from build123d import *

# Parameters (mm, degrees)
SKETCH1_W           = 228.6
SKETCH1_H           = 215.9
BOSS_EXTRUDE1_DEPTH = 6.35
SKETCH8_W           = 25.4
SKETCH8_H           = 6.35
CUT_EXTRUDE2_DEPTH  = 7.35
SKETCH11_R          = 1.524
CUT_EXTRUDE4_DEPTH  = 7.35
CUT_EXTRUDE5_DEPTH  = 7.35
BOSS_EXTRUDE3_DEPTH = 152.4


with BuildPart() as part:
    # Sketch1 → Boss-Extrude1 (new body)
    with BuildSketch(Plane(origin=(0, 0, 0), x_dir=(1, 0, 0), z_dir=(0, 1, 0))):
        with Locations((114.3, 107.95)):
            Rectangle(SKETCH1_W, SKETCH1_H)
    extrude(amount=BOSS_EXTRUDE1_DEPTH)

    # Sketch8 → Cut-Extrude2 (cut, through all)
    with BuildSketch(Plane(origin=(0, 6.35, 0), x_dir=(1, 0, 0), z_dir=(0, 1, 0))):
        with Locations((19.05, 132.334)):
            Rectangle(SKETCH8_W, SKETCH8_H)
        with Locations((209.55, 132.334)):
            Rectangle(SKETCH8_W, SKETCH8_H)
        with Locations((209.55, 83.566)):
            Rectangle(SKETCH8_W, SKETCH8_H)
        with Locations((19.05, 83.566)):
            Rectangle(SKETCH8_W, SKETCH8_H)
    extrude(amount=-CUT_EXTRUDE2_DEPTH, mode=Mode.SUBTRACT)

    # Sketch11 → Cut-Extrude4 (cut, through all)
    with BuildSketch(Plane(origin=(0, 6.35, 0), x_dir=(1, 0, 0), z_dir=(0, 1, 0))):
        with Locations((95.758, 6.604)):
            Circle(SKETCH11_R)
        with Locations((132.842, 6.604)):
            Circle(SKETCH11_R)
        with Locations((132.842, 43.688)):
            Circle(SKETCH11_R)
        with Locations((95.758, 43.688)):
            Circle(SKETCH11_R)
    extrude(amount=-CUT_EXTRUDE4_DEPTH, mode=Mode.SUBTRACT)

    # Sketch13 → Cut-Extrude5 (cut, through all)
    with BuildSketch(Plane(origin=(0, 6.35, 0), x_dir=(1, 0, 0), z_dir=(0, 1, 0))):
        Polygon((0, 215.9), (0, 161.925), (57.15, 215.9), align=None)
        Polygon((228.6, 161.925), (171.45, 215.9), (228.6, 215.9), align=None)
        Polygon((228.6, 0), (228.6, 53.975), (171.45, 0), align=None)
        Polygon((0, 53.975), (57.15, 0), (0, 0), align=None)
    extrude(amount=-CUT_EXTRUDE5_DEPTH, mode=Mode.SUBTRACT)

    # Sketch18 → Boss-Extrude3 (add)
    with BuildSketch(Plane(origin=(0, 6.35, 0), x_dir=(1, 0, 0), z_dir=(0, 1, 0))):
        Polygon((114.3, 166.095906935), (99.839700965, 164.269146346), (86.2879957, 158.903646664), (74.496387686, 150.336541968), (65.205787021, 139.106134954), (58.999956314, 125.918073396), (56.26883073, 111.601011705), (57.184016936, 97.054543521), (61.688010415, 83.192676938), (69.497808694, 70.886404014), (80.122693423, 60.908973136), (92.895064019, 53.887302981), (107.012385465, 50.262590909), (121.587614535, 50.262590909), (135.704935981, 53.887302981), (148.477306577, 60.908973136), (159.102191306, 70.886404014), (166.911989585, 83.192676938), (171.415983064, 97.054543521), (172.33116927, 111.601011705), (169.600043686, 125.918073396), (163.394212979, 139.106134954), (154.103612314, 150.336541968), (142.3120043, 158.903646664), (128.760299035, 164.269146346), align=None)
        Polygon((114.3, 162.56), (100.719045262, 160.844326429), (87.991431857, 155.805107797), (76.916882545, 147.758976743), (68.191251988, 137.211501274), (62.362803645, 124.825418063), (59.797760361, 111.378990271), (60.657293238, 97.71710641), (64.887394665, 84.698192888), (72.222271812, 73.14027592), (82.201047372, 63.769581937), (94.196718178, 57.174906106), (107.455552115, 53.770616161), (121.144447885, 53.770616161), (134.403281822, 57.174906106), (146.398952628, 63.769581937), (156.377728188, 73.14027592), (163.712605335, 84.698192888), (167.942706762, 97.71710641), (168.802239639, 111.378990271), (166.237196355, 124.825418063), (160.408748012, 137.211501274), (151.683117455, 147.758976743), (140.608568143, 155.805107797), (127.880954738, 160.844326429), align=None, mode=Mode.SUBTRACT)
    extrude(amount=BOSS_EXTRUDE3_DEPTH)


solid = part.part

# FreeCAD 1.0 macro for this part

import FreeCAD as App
import Part
import Sketcher
Q = App.Units.Quantity


def add_polygon(sketch, points):
    """Adds a closed chain of lines whose ends are joined by coincident constraints."""
    first, n = sketch.GeometryCount, len(points)
    for a, b in zip(points, points[1:] + points[:1]):
        sketch.addGeometry(Part.LineSegment(App.Vector(*a, 0), App.Vector(*b, 0)), False)
    for i in range(n):
        sketch.addConstraint(Sketcher.Constraint("Coincident", first + i, 2, first + (i + 1) % n, 1))

doc = App.newDocument("Part")
body = doc.addObject("PartDesign::Body", "Body")

sketch1 = body.newObject("Sketcher::SketchObject", "Sketch")
sketch1.AttachmentSupport = (doc.getObject("XZ_Plane"), [""])
sketch1.MapMode = "FlatFace"
add_polygon(sketch1, [(0, -216), (0, 0), (229, 0), (229, -216)])
sketch1.addConstraint(Sketcher.Constraint("Vertical", 0))
sketch1.addConstraint(Sketcher.Constraint("Horizontal", 1))
sketch1.addConstraint(Sketcher.Constraint("Vertical", 2))
sketch1.addConstraint(Sketcher.Constraint("Horizontal", 3))
sketch1.addConstraint(Sketcher.Constraint("Coincident", 0, 2, -1, 1))
sketch1.addConstraint(Sketcher.Constraint("DistanceX", 1, 1, 1, 2, Q("9 in")))
sketch1.addConstraint(Sketcher.Constraint("DistanceY", 0, 1, 0, 2, Q("8.5 in")))
pad1 = body.newObject("PartDesign::Pad", "Pad")
pad1.Profile = sketch1
pad1.Length = Q("0.25 in")
pad1.Reversed = True

sketch2 = body.newObject("Sketcher::SketchObject", "Sketch001")
sketch2.AttachmentSupport = (doc.getObject("XZ_Plane"), [""])
sketch2.MapMode = "FlatFace"
sketch2.AttachmentOffset = App.Placement(App.Vector(0, 0, -0.25 * 25.4), App.Rotation())
add_polygon(sketch2, [(6, -136), (6, -129), (32, -129), (32, -136)])
add_polygon(sketch2, [(197, -136), (197, -129), (222, -129), (222, -136)])
add_polygon(sketch2, [(197, -87), (197, -80), (222, -80), (222, -87)])
add_polygon(sketch2, [(6, -87), (6, -80), (32, -80), (32, -87)])
sketch2.addConstraint(Sketcher.Constraint("Vertical", 0))
sketch2.addConstraint(Sketcher.Constraint("Horizontal", 1))
sketch2.addConstraint(Sketcher.Constraint("Vertical", 2))
sketch2.addConstraint(Sketcher.Constraint("Horizontal", 3))
sketch2.addConstraint(Sketcher.Constraint("Vertical", 4))
sketch2.addConstraint(Sketcher.Constraint("Horizontal", 5))
sketch2.addConstraint(Sketcher.Constraint("Vertical", 6))
sketch2.addConstraint(Sketcher.Constraint("Horizontal", 7))
sketch2.addConstraint(Sketcher.Constraint("Vertical", 8))
sketch2.addConstraint(Sketcher.Constraint("Horizontal", 9))
sketch2.addConstraint(Sketcher.Constraint("Vertical", 10))
sketch2.addConstraint(Sketcher.Constraint("Horizontal", 11))
sketch2.addConstraint(Sketcher.Constraint("Vertical", 12))
sketch2.addConstraint(Sketcher.Constraint("Horizontal", 13))
sketch2.addConstraint(Sketcher.Constraint("Vertical", 14))
sketch2.addConstraint(Sketcher.Constraint("Horizontal", 15))
sketch2.addConstraint(Sketcher.Constraint("Horizontal", 1, 2, 4, 2))
sketch2.addConstraint(Sketcher.Constraint("Horizontal", 3, 2, 6, 2))
sketch2.addConstraint(Sketcher.Constraint("Horizontal", 9, 2, 12, 2))
sketch2.addConstraint(Sketcher.Constraint("Horizontal", 11, 2, 14, 2))
sketch2.addConstraint(Sketcher.Constraint("Vertical", 7, 2, 8, 2))
sketch2.addConstraint(Sketcher.Constraint("Vertical", 6, 2, 9, 2))
sketch2.addConstraint(Sketcher.Constraint("Vertical", 3, 2, 12, 2))
sketch2.addConstraint(Sketcher.Constraint("Vertical", 2, 2, 13, 2))
sketch2.addConstraint(Sketcher.Constraint("Equal", 3, 5))
sketch2.addConstraint(Sketcher.Constraint("Equal", 6, 8))
sketch2.addConstraint(Sketcher.Constraint("DistanceX", 1, 1, 1, 2, Q("1 in")))
sketch2.addConstraint(Sketcher.Constraint("DistanceY", 0, 1, 0, 2, Q("0.25 in")))
sketch2.addConstraint(Sketcher.Constraint("DistanceX", 1, 2, 4, 2, Q("6.5 in")))
sketch2.addConstraint(Sketcher.Constraint("DistanceX", -1, 1, 0, 2, Q("0.25 in")))
sketch2.addConstraint(Sketcher.Constraint("DistanceY", 4, 2, 8, 2, Q("1.92 in")))
sketch2.addConstraint(Sketcher.Constraint("DistanceY", 0, 2, -1, 1, Q("5.085 in")))
pocket1 = body.newObject("PartDesign::Pocket", "Pocket")
pocket1.Profile = sketch2
pocket1.Type = "ThroughAll"
pocket1.Reversed = True

sketch3 = body.newObject("Sketcher::SketchObject", "Sketch002")
sketch3.AttachmentSupport = (doc.getObject("XZ_Plane"), [""])
sketch3.MapMode = "FlatFace"
sketch3.AttachmentOffset = App.Placement(App.Vector(0, 0, -0.25 * 25.4), App.Rotation())
sketch3.addGeometry(Part.Circle(App.Vector(95.8, -6.6, 0), App.Vector(0, 0, 1), 1.5), False)
sketch3.addGeometry(Part.Circle(App.Vector(132.8, -6.6, 0), App.Vector(0, 0, 1), 1.5), False)
sketch3.addGeometry(Part.Circle(App.Vector(132.8, -43.7, 0), App.Vector(0, 0, 1), 1.5), False)
sketch3.addGeometry(Part.Circle(App.Vector(95.8, -43.7, 0), App.Vector(0, 0, 1), 1.5), False)
sketch3.addConstraint(Sketcher.Constraint("Equal", 0, 1))
sketch3.addConstraint(Sketcher.Constraint("Equal", 1, 2))
sketch3.addConstraint(Sketcher.Constraint("Equal", 2, 3))
sketch3.addConstraint(Sketcher.Constraint("Horizontal", 0, 3, 1, 3))
sketch3.addConstraint(Sketcher.Constraint("Horizontal", 2, 3, 3, 3))
sketch3.addConstraint(Sketcher.Constraint("Vertical", 1, 3, 2, 3))
sketch3.addConstraint(Sketcher.Constraint("Vertical", 0, 3, 3, 3))
sketch3.addConstraint(Sketcher.Constraint("Diameter", 0, Q("0.12 in")))
sketch3.addConstraint(Sketcher.Constraint("DistanceX", -1, 1, 0, 3, Q("3.77 in")))
sketch3.addConstraint(Sketcher.Constraint("DistanceY", 0, 3, -1, 1, Q("0.26 in")))
sketch3.addConstraint(Sketcher.Constraint("DistanceX", -1, 1, 1, 3, Q("5.23 in")))
sketch3.addConstraint(Sketcher.Constraint("DistanceY", 2, 3, -1, 1, Q("1.72 in")))
pocket2 = body.newObject("PartDesign::Pocket", "Pocket001")
pocket2.Profile = sketch3
pocket2.Type = "ThroughAll"
pocket2.Reversed = True

sketch4 = body.newObject("Sketcher::SketchObject", "Sketch003")
sketch4.AttachmentSupport = (doc.getObject("XZ_Plane"), [""])
sketch4.MapMode = "FlatFace"
sketch4.AttachmentOffset = App.Placement(App.Vector(0, 0, -0.25 * 25.4), App.Rotation())
add_polygon(sketch4, [(0, -216), (0, -162), (57, -216)])
add_polygon(sketch4, [(171, -216), (229, -162), (229, -216)])
add_polygon(sketch4, [(229, 0), (229, -54), (171, 0)])
add_polygon(sketch4, [(57, 0), (0, -54), (0, 0)])
sketch4.addConstraint(Sketcher.Constraint("Vertical", 0))
sketch4.addConstraint(Sketcher.Constraint("Horizontal", 2))
sketch4.addConstraint(Sketcher.Constraint("Vertical", 4))
sketch4.addConstraint(Sketcher.Constraint("Horizontal", 5))
sketch4.addConstraint(Sketcher.Constraint("Vertical", 6))
sketch4.addConstraint(Sketcher.Constraint("Horizontal", 8))
sketch4.addConstraint(Sketcher.Constraint("Vertical", 10))
sketch4.addConstraint(Sketcher.Constraint("Horizontal", 11))
sketch4.addConstraint(Sketcher.Constraint("Coincident", 10, 2, -1, 1))
sketch4.addConstraint(Sketcher.Constraint("PointOnObject", 0, 2, -2))
sketch4.addConstraint(Sketcher.Constraint("PointOnObject", 7, 2, -1))
sketch4.addConstraint(Sketcher.Constraint("Parallel", 1, 7))
sketch4.addConstraint(Sketcher.Constraint("Parallel", 3, 9))
sketch4.addConstraint(Sketcher.Constraint("Horizontal", 0, 2, 3, 2))
sketch4.addConstraint(Sketcher.Constraint("Horizontal", 2, 2, 4, 2))
sketch4.addConstraint(Sketcher.Constraint("Horizontal", 6, 2, 9, 2))
sketch4.addConstraint(Sketcher.Constraint("Vertical", 4, 2, 6, 2))
sketch4.addConstraint(Sketcher.Constraint("Vertical", 5, 2, 7, 2))
sketch4.addConstraint(Sketcher.Constraint("Vertical", 1, 2, 11, 2))
sketch4.addConstraint(Sketcher.Constraint("DistanceX", -1, 1, 3, 2, Q("9 in")))
sketch4.addConstraint(Sketcher.Constraint("DistanceX", 2, 2, 2, 1, Q("2.25 in")))
sketch4.addConstraint(Sketcher.Constraint("DistanceY", 1, 2, -1, 1, Q("8.5 in")))
sketch4.addConstraint(Sketcher.Constraint("DistanceY", 0, 1, 0, 2, Q("2.125 in")))
pocket3 = body.newObject("PartDesign::Pocket", "Pocket002")
pocket3.Profile = sketch4
pocket3.Type = "ThroughAll"
pocket3.Reversed = True

sketch5 = body.newObject("Sketcher::SketchObject", "Sketch004")
sketch5.AttachmentSupport = (doc.getObject("XZ_Plane"), [""])
sketch5.MapMode = "FlatFace"
sketch5.AttachmentOffset = App.Placement(App.Vector(0, 0, -0.25 * 25.4), App.Rotation())
add_polygon(sketch5, [(114, -166), (100, -164), (86, -159), (74, -150), (65, -139), (59, -126), (56, -112), (57, -97), (62, -83), (69, -71), (80, -61), (93, -54), (107, -50), (122, -50), (136, -54), (148, -61), (159, -71), (167, -83), (171, -97), (172, -112), (170, -126), (163, -139), (154, -150), (142, -159), (129, -164)])
add_polygon(sketch5, [(101, -161), (114, -163), (128, -161), (141, -156), (152, -148), (160, -137), (166, -125), (169, -111), (168, -98), (164, -85), (156, -73), (146, -64), (134, -57), (121, -54), (107, -54), (94, -57), (82, -64), (72, -73), (65, -85), (61, -98), (60, -111), (62, -125), (68, -137), (77, -148), (88, -156)])
sketch5.addConstraint(Sketcher.Constraint("Horizontal", 12))
sketch5.addConstraint(Sketcher.Constraint("Horizontal", 38))
sketch5.addConstraint(Sketcher.Constraint("Parallel", 0, 25))
sketch5.addConstraint(Sketcher.Constraint("Parallel", 24, 26))
sketch5.addConstraint(Sketcher.Constraint("Parallel", 23, 27))
sketch5.addConstraint(Sketcher.Constraint("Parallel", 22, 28))
sketch5.addConstraint(Sketcher.Constraint("Parallel", 21, 29))
sketch5.addConstraint(Sketcher.Constraint("Parallel", 20, 30))
sketch5.addConstraint(Sketcher.Constraint("Parallel", 19, 31))
sketch5.addConstraint(Sketcher.Constraint("Parallel", 18, 32))
sketch5.addConstraint(Sketcher.Constraint("Parallel", 17, 33))
sketch5.addConstraint(Sketcher.Constraint("Parallel", 16, 34))
sketch5.addConstraint(Sketcher.Constraint("Parallel", 15, 35))
sketch5.addConstraint(Sketcher.Constraint("Parallel", 14, 36))
sketch5.addConstraint(Sketcher.Constraint("Parallel", 13, 37))
sketch5.addConstraint(Sketcher.Constraint("Parallel", 11, 39))
sketch5.addConstraint(Sketcher.Constraint("Parallel", 10, 40))
sketch5.addConstraint(Sketcher.Constraint("Parallel", 9, 41))
sketch5.addConstraint(Sketcher.Constraint("Parallel", 8, 42))
sketch5.addConstraint(Sketcher.Constraint("Parallel", 7, 43))
sketch5.addConstraint(Sketcher.Constraint("Parallel", 6, 44))
sketch5.addConstraint(Sketcher.Constraint("Parallel", 5, 45))
sketch5.addConstraint(Sketcher.Constraint("Parallel", 4, 46))
sketch5.addConstraint(Sketcher.Constraint("Parallel", 3, 47))
sketch5.addConstraint(Sketcher.Constraint("Parallel", 2, 48))
sketch5.addConstraint(Sketcher.Constraint("Parallel", 1, 49))
sketch5.addConstraint(Sketcher.Constraint("Horizontal", 10, 2, 13, 2))
sketch5.addConstraint(Sketcher.Constraint("Horizontal", 9, 2, 14, 2))
sketch5.addConstraint(Sketcher.Constraint("Horizontal", 8, 2, 15, 2))
sketch5.addConstraint(Sketcher.Constraint("Horizontal", 7, 2, 16, 2))
sketch5.addConstraint(Sketcher.Constraint("Horizontal", 6, 2, 17, 2))
sketch5.addConstraint(Sketcher.Constraint("Horizontal", 5, 2, 18, 2))
sketch5.addConstraint(Sketcher.Constraint("Horizontal", 4, 2, 19, 2))
sketch5.addConstraint(Sketcher.Constraint("Horizontal", 3, 2, 20, 2))
sketch5.addConstraint(Sketcher.Constraint("Horizontal", 2, 2, 21, 2))
sketch5.addConstraint(Sketcher.Constraint("Horizontal", 1, 2, 22, 2))
sketch5.addConstraint(Sketcher.Constraint("Horizontal", 0, 2, 23, 2))
sketch5.addConstraint(Sketcher.Constraint("Horizontal", 36, 2, 39, 2))
sketch5.addConstraint(Sketcher.Constraint("Horizontal", 35, 2, 40, 2))
sketch5.addConstraint(Sketcher.Constraint("Horizontal", 34, 2, 41, 2))
sketch5.addConstraint(Sketcher.Constraint("Horizontal", 33, 2, 42, 2))
sketch5.addConstraint(Sketcher.Constraint("Horizontal", 32, 2, 43, 2))
sketch5.addConstraint(Sketcher.Constraint("Horizontal", 31, 2, 44, 2))
sketch5.addConstraint(Sketcher.Constraint("Horizontal", 30, 2, 45, 2))
sketch5.addConstraint(Sketcher.Constraint("Horizontal", 29, 2, 46, 2))
sketch5.addConstraint(Sketcher.Constraint("Horizontal", 28, 2, 47, 2))
sketch5.addConstraint(Sketcher.Constraint("Horizontal", 27, 2, 48, 2))
sketch5.addConstraint(Sketcher.Constraint("Horizontal", 26, 2, 49, 2))
sketch5.addConstraint(Sketcher.Constraint("Vertical", 24, 2, 25, 2))
sketch5.addConstraint(Sketcher.Constraint("Equal", 0, 1))
sketch5.addConstraint(Sketcher.Constraint("Equal", 1, 2))
sketch5.addConstraint(Sketcher.Constraint("Equal", 2, 3))
sketch5.addConstraint(Sketcher.Constraint("Equal", 3, 4))
sketch5.addConstraint(Sketcher.Constraint("Equal", 4, 5))
sketch5.addConstraint(Sketcher.Constraint("Equal", 5, 6))
sketch5.addConstraint(Sketcher.Constraint("Equal", 6, 7))
sketch5.addConstraint(Sketcher.Constraint("Equal", 7, 8))
sketch5.addConstraint(Sketcher.Constraint("Equal", 8, 9))
sketch5.addConstraint(Sketcher.Constraint("Equal", 9, 10))
sketch5.addConstraint(Sketcher.Constraint("Equal", 10, 11))
sketch5.addConstraint(Sketcher.Constraint("Equal", 11, 13))
sketch5.addConstraint(Sketcher.Constraint("Equal", 13, 14))
sketch5.addConstraint(Sketcher.Constraint("Equal", 14, 15))
sketch5.addConstraint(Sketcher.Constraint("Equal", 15, 16))
sketch5.addConstraint(Sketcher.Constraint("Equal", 16, 17))
sketch5.addConstraint(Sketcher.Constraint("Equal", 17, 18))
sketch5.addConstraint(Sketcher.Constraint("Equal", 18, 19))
sketch5.addConstraint(Sketcher.Constraint("Equal", 19, 20))
sketch5.addConstraint(Sketcher.Constraint("Equal", 20, 21))
sketch5.addConstraint(Sketcher.Constraint("Equal", 21, 22))
sketch5.addConstraint(Sketcher.Constraint("Equal", 22, 23))
sketch5.addConstraint(Sketcher.Constraint("Equal", 23, 24))
sketch5.addConstraint(Sketcher.Constraint("Equal", 26, 27))
sketch5.addConstraint(Sketcher.Constraint("Equal", 27, 28))
sketch5.addConstraint(Sketcher.Constraint("Equal", 28, 29))
sketch5.addConstraint(Sketcher.Constraint("Equal", 29, 30))
sketch5.addConstraint(Sketcher.Constraint("Equal", 30, 31))
sketch5.addConstraint(Sketcher.Constraint("Equal", 31, 32))
sketch5.addConstraint(Sketcher.Constraint("Equal", 32, 33))
sketch5.addConstraint(Sketcher.Constraint("Equal", 33, 34))
sketch5.addConstraint(Sketcher.Constraint("Equal", 34, 35))
sketch5.addConstraint(Sketcher.Constraint("Equal", 35, 36))
sketch5.addConstraint(Sketcher.Constraint("Equal", 36, 37))
sketch5.addConstraint(Sketcher.Constraint("Angle", 2, Q("144 deg")))
sketch5.addConstraint(Sketcher.Constraint("Angle", 7, Q("72 deg")))
sketch5.addConstraint(Sketcher.Constraint("DistanceX", -1, 1, 24, 2, Q("4.5 in")))
sketch5.addConstraint(Sketcher.Constraint("DistanceY", 25, 2, -1, 1, Q("6.4 in")))
sketch5.addConstraint(Sketcher.Constraint("Angle", 0, Q("172.8 deg")))
sketch5.addConstraint(Sketcher.Constraint("Angle", 1, Q("158.4 deg")))
sketch5.addConstraint(Sketcher.Constraint("Angle", 3, Q("129.6 deg")))
sketch5.addConstraint(Sketcher.Constraint("Angle", 4, Q("115.2 deg")))
sketch5.addConstraint(Sketcher.Constraint("Angle", 5, Q("100.8 deg")))
sketch5.addConstraint(Sketcher.Constraint("Angle", 6, Q("86.4 deg")))
sketch5.addConstraint(Sketcher.Constraint("Angle", 8, Q("57.6 deg")))
sketch5.addConstraint(Sketcher.Constraint("Angle", 9, Q("43.2 deg")))
sketch5.addConstraint(Sketcher.Constraint("Angle", 10, Q("28.8 deg")))
sketch5.addConstraint(Sketcher.Constraint("Angle", 11, Q("14.4 deg")))
sketch5.addConstraint(Sketcher.Constraint("DistanceX", 10, 2, 11, 2, Q("0.5558001 in")))
sketch5.addConstraint(Sketcher.Constraint("DistanceY", 29, 2, -1, 1, Q("137.211501 mm")))
sketch5.addConstraint(Sketcher.Constraint("DistanceY", 16, 2, 34, 2, Q("10.052401 mm")))
pad2 = body.newObject("PartDesign::Pad", "Pad001")
pad2.Profile = sketch5
pad2.Length = Q("6 in")
pad2.Reversed = True

doc.recompute()
